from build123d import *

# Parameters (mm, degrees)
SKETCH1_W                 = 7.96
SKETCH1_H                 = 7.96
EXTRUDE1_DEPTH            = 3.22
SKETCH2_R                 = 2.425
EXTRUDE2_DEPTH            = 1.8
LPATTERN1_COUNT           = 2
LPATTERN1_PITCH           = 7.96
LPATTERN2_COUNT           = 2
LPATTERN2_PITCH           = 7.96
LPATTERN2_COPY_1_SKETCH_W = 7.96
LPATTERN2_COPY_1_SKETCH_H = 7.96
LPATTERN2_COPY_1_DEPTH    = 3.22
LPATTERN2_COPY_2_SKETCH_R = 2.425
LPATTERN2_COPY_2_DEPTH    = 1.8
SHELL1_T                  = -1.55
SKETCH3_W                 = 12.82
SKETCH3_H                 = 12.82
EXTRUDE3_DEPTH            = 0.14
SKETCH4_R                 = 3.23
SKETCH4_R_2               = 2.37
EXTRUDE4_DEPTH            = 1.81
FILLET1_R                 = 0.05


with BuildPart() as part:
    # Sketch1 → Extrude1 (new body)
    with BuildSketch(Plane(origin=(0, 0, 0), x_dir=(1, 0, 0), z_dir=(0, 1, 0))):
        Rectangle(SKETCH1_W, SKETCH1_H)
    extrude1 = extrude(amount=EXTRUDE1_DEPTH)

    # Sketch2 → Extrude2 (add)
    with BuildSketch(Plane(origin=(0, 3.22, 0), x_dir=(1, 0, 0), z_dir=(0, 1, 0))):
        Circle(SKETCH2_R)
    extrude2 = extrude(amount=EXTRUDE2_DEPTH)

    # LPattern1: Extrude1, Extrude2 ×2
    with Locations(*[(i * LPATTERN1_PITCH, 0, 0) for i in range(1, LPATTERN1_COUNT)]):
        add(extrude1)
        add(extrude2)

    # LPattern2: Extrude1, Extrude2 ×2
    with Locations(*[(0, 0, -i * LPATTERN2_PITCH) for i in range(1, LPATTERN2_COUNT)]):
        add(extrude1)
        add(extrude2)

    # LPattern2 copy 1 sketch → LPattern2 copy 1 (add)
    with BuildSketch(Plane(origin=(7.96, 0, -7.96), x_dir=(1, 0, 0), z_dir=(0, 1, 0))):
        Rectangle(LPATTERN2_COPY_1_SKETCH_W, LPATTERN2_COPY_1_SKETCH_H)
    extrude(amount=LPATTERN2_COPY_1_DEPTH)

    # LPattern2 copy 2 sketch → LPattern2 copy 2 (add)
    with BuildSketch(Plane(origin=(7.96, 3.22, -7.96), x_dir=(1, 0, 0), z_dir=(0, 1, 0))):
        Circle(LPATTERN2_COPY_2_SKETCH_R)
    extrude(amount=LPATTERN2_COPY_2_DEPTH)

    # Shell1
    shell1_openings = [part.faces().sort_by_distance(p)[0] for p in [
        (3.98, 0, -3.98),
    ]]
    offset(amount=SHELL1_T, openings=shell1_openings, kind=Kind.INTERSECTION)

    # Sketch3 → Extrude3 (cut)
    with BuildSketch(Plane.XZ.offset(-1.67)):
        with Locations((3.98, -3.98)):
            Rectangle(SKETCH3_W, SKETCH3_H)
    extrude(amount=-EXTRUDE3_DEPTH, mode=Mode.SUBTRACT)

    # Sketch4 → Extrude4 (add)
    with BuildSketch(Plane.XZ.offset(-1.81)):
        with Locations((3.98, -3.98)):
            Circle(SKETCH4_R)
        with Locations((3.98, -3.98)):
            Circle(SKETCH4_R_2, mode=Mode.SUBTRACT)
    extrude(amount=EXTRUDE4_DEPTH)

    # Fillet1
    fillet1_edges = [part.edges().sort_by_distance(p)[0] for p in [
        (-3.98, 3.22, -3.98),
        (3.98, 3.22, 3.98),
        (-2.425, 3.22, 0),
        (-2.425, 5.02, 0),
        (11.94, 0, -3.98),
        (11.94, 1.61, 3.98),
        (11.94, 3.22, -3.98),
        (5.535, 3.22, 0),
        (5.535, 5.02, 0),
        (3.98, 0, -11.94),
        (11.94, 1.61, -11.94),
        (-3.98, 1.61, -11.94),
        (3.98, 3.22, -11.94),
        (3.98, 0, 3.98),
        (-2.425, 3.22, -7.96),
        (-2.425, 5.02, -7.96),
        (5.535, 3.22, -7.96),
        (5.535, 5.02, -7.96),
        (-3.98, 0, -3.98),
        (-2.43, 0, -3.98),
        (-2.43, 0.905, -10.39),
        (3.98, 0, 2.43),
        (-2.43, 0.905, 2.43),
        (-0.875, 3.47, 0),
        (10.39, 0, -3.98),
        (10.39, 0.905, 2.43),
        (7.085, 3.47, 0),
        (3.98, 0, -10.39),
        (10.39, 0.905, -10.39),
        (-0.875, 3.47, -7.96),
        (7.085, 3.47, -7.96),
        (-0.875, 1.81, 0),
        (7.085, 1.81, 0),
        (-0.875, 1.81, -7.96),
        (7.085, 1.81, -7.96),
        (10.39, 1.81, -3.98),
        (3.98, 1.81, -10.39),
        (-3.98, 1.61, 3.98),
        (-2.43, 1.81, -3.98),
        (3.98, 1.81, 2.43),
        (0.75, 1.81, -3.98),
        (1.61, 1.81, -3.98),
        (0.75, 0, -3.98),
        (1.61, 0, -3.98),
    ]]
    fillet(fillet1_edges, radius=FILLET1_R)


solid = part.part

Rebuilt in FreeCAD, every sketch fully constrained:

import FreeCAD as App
import Part
import Sketcher
from FreeCAD import Vector


def faces_at(feature, points):
    """Names of the faces that lie closest to the given points."""
    faces = feature.Shape.Faces
    near = lambda p: min(range(len(faces)), key=lambda i: faces[i].distToShape(Part.Vertex(*p))[0])
    return sorted({f"Face{near(p) + 1}" for p in points})

doc = App.newDocument("Part")
body = doc.addObject("PartDesign::Body", "Body")

# Sketch on XZ plane
sketch1 = body.newObject("Sketcher::SketchObject", "Sketch")
sketch1.AttachmentSupport = (doc.getObject("XZ_Plane"), [""])
sketch1.MapMode = "FlatFace"
sketch1.addGeometry([
    Part.LineSegment(Vector(-3.98, -3.98, 0), Vector(-3.98, 3.98, 0)),
    Part.LineSegment(Vector(-3.98, 3.98, 0), Vector(3.98, 3.98, 0)),
    Part.LineSegment(Vector(3.98, 3.98, 0), Vector(3.98, -3.98, 0)),
    Part.LineSegment(Vector(3.98, -3.98, 0), Vector(-3.98, -3.98, 0)),
], False)
sketch1.addConstraint([
    Sketcher.Constraint("Coincident", 0, 2, 1, 1),
    Sketcher.Constraint("Coincident", 1, 2, 2, 1),
    Sketcher.Constraint("Coincident", 2, 2, 3, 1),
    Sketcher.Constraint("Coincident", 3, 2, 0, 1),
    Sketcher.Constraint("Vertical", 0),
    Sketcher.Constraint("Horizontal", 1),
    Sketcher.Constraint("Vertical", 2),
    Sketcher.Constraint("Horizontal", 3),
    Sketcher.Constraint("Symmetric", 0, 2, 2, 2, -1, 1),
    Sketcher.Constraint("Equal", 3, 0),
    Sketcher.Constraint("DistanceX", 1, 1, 1, 2, 7.96),
])
pad1 = body.newObject("PartDesign::Pad", "Pad")
pad1.Profile = sketch1
pad1.Length = 3.22
pad1.Reversed = True

# Sketch on XZ plane
sketch2 = body.newObject("Sketcher::SketchObject", "Sketch001")
sketch2.AttachmentSupport = (doc.getObject("XZ_Plane"), [""])
sketch2.MapMode = "FlatFace"
sketch2.AttachmentOffset = App.Placement(Vector(0, 0, -3.22), App.Rotation())
sketch2.addGeometry(Part.Circle(Vector(0, 0, 0), Vector(0, 0, 1), 2.425), False)
sketch2.addConstraint([
    Sketcher.Constraint("Coincident", 0, 3, -1, 1),
    Sketcher.Constraint("Diameter", 0, 4.85),
])
pad2 = body.newObject("PartDesign::Pad", "Pad001")
pad2.Profile = sketch2
pad2.Length = 1.8
pad2.Reversed = True
doc.recompute()

linearpattern = body.newObject("PartDesign::LinearPattern", "LinearPattern")
linearpattern.Originals = [pad1, pad2]
linearpattern.Direction = (doc.getObject("X_Axis"), [""])
linearpattern.Mode = "offset"
linearpattern.Offset = 7.96
linearpattern.Occurrences = 2
body.Tip = linearpattern
doc.recompute()

linearpattern2 = body.newObject("PartDesign::LinearPattern", "LinearPattern001")
linearpattern2.Originals = [pad1, pad2]
linearpattern2.Direction = (doc.getObject("Z_Axis"), [""])
linearpattern2.Mode = "offset"
linearpattern2.Offset = 7.96
linearpattern2.Occurrences = 2
linearpattern2.Reversed = True
body.Tip = linearpattern2

# Sketch on XZ plane
sketch3 = body.newObject("Sketcher::SketchObject", "Sketch002")
sketch3.AttachmentSupport = (doc.getObject("XZ_Plane"), [""])
sketch3.MapMode = "FlatFace"
sketch3.addGeometry([
    Part.LineSegment(Vector(3.98, -11.94, 0), Vector(3.98, -3.98, 0)),
    Part.LineSegment(Vector(3.98, -3.98, 0), Vector(11.94, -3.98, 0)),
    Part.LineSegment(Vector(11.94, -3.98, 0), Vector(11.94, -11.94, 0)),
    Part.LineSegment(Vector(11.94, -11.94, 0), Vector(3.98, -11.94, 0)),
], False)
sketch3.addConstraint([
    Sketcher.Constraint("Coincident", 0, 2, 1, 1),
    Sketcher.Constraint("Coincident", 1, 2, 2, 1),
    Sketcher.Constraint("Coincident", 2, 2, 3, 1),
    Sketcher.Constraint("Coincident", 3, 2, 0, 1),
    Sketcher.Constraint("Vertical", 0),
    Sketcher.Constraint("Horizontal", 1),
    Sketcher.Constraint("Vertical", 2),
    Sketcher.Constraint("Horizontal", 3),
    Sketcher.Constraint("Equal", 3, 0),
    Sketcher.Constraint("DistanceX", 1, 1, 1, 2, 7.96),
    Sketcher.Constraint("DistanceX", -1, 1, 0, 2, 3.98),
    Sketcher.Constraint("DistanceY", 0, 2, -1, 1, 3.98),
])
pad3 = body.newObject("PartDesign::Pad", "Pad002")
pad3.Profile = sketch3
pad3.Length = 3.22
pad3.Reversed = True

# Sketch on XZ plane
sketch4 = body.newObject("Sketcher::SketchObject", "Sketch003")
sketch4.AttachmentSupport = (doc.getObject("XZ_Plane"), [""])
sketch4.MapMode = "FlatFace"
sketch4.AttachmentOffset = App.Placement(Vector(0, 0, -3.22), App.Rotation())
sketch4.addGeometry(Part.Circle(Vector(7.96, -7.96, 0), Vector(0, 0, 1), 2.425), False)
sketch4.addConstraint([
    Sketcher.Constraint("Diameter", 0, 4.85),
    Sketcher.Constraint("DistanceX", -1, 1, 0, 3, 7.96),
    Sketcher.Constraint("DistanceY", 0, 3, -1, 1, 7.96),
])
pad4 = body.newObject("PartDesign::Pad", "Pad003")
pad4.Profile = sketch4
pad4.Length = 1.8
pad4.Reversed = True
doc.recompute()

thickness = body.newObject("PartDesign::Thickness", "Thickness")
thickness.Base = (pad4, faces_at(pad4, [(3.98, 0, -3.98)]))
thickness.Value = 1.55
thickness.Reversed = True
thickness.Join = "Intersection"

# Sketch on XZ plane
sketch5 = body.newObject("Sketcher::SketchObject", "Sketch004")
sketch5.AttachmentSupport = (doc.getObject("XZ_Plane"), [""])
sketch5.MapMode = "FlatFace"
sketch5.AttachmentOffset = App.Placement(Vector(0, 0, -1.67), App.Rotation())
sketch5.addGeometry([
    Part.LineSegment(Vector(-2.43, 2.43, 0), Vector(-2.43, -10.39, 0)),
    Part.LineSegment(Vector(-2.43, -10.39, 0), Vector(10.39, -10.39, 0)),
    Part.LineSegment(Vector(10.39, -10.39, 0), Vector(10.39, 2.43, 0)),
    Part.LineSegment(Vector(10.39, 2.43, 0), Vector(-2.43, 2.43, 0)),
], False)
sketch5.addConstraint([
    Sketcher.Constraint("Coincident", 0, 2, 1, 1),
    Sketcher.Constraint("Coincident", 1, 2, 2, 1),
    Sketcher.Constraint("Coincident", 2, 2, 3, 1),
    Sketcher.Constraint("Coincident", 3, 2, 0, 1),
    Sketcher.Constraint("Vertical", 0),
    Sketcher.Constraint("Horizontal", 1),
    Sketcher.Constraint("Vertical", 2),
    Sketcher.Constraint("Horizontal", 3),
    Sketcher.Constraint("Equal", 3, 0),
    Sketcher.Constraint("DistanceX", 1, 1, 1, 2, 12.82),
    Sketcher.Constraint("DistanceX", 0, 2, -1, 1, 2.43),
    Sketcher.Constraint("DistanceY", 0, 2, -1, 1, 10.39),
])
pocket1 = body.newObject("PartDesign::Pocket", "Pocket")
pocket1.Profile = sketch5
pocket1.Length = 0.14

# Sketch on XZ plane
sketch6 = body.newObject("Sketcher::SketchObject", "Sketch005")
sketch6.AttachmentSupport = (doc.getObject("XZ_Plane"), [""])
sketch6.MapMode = "FlatFace"
sketch6.AttachmentOffset = App.Placement(Vector(0, 0, -1.81), App.Rotation())
sketch6.addGeometry([
    Part.Circle(Vector(3.98, -3.98, 0), Vector(0, 0, 1), 3.23),
    Part.Circle(Vector(3.98, -3.98, 0), Vector(0, 0, 1), 2.37),
], False)
sketch6.addConstraint([
    Sketcher.Constraint("Coincident", 1, 3, 0, 3),
    Sketcher.Constraint("Diameter", 0, 6.46),
    Sketcher.Constraint("Diameter", 1, 4.74),
    Sketcher.Constraint("DistanceX", -1, 1, 0, 3, 3.98),
    Sketcher.Constraint("DistanceY", 0, 3, -1, 1, 3.98),
])
pad5 = body.newObject("PartDesign::Pad", "Pad004")
pad5.Profile = sketch6
pad5.Length = 1.81
doc.recompute()

fillet = body.newObject("PartDesign::Fillet", "Fillet")
fillet.Base = (pad5, ["Edge1"])
fillet.UseAllEdges = True
fillet.Radius = 0.05

doc.recompute()
